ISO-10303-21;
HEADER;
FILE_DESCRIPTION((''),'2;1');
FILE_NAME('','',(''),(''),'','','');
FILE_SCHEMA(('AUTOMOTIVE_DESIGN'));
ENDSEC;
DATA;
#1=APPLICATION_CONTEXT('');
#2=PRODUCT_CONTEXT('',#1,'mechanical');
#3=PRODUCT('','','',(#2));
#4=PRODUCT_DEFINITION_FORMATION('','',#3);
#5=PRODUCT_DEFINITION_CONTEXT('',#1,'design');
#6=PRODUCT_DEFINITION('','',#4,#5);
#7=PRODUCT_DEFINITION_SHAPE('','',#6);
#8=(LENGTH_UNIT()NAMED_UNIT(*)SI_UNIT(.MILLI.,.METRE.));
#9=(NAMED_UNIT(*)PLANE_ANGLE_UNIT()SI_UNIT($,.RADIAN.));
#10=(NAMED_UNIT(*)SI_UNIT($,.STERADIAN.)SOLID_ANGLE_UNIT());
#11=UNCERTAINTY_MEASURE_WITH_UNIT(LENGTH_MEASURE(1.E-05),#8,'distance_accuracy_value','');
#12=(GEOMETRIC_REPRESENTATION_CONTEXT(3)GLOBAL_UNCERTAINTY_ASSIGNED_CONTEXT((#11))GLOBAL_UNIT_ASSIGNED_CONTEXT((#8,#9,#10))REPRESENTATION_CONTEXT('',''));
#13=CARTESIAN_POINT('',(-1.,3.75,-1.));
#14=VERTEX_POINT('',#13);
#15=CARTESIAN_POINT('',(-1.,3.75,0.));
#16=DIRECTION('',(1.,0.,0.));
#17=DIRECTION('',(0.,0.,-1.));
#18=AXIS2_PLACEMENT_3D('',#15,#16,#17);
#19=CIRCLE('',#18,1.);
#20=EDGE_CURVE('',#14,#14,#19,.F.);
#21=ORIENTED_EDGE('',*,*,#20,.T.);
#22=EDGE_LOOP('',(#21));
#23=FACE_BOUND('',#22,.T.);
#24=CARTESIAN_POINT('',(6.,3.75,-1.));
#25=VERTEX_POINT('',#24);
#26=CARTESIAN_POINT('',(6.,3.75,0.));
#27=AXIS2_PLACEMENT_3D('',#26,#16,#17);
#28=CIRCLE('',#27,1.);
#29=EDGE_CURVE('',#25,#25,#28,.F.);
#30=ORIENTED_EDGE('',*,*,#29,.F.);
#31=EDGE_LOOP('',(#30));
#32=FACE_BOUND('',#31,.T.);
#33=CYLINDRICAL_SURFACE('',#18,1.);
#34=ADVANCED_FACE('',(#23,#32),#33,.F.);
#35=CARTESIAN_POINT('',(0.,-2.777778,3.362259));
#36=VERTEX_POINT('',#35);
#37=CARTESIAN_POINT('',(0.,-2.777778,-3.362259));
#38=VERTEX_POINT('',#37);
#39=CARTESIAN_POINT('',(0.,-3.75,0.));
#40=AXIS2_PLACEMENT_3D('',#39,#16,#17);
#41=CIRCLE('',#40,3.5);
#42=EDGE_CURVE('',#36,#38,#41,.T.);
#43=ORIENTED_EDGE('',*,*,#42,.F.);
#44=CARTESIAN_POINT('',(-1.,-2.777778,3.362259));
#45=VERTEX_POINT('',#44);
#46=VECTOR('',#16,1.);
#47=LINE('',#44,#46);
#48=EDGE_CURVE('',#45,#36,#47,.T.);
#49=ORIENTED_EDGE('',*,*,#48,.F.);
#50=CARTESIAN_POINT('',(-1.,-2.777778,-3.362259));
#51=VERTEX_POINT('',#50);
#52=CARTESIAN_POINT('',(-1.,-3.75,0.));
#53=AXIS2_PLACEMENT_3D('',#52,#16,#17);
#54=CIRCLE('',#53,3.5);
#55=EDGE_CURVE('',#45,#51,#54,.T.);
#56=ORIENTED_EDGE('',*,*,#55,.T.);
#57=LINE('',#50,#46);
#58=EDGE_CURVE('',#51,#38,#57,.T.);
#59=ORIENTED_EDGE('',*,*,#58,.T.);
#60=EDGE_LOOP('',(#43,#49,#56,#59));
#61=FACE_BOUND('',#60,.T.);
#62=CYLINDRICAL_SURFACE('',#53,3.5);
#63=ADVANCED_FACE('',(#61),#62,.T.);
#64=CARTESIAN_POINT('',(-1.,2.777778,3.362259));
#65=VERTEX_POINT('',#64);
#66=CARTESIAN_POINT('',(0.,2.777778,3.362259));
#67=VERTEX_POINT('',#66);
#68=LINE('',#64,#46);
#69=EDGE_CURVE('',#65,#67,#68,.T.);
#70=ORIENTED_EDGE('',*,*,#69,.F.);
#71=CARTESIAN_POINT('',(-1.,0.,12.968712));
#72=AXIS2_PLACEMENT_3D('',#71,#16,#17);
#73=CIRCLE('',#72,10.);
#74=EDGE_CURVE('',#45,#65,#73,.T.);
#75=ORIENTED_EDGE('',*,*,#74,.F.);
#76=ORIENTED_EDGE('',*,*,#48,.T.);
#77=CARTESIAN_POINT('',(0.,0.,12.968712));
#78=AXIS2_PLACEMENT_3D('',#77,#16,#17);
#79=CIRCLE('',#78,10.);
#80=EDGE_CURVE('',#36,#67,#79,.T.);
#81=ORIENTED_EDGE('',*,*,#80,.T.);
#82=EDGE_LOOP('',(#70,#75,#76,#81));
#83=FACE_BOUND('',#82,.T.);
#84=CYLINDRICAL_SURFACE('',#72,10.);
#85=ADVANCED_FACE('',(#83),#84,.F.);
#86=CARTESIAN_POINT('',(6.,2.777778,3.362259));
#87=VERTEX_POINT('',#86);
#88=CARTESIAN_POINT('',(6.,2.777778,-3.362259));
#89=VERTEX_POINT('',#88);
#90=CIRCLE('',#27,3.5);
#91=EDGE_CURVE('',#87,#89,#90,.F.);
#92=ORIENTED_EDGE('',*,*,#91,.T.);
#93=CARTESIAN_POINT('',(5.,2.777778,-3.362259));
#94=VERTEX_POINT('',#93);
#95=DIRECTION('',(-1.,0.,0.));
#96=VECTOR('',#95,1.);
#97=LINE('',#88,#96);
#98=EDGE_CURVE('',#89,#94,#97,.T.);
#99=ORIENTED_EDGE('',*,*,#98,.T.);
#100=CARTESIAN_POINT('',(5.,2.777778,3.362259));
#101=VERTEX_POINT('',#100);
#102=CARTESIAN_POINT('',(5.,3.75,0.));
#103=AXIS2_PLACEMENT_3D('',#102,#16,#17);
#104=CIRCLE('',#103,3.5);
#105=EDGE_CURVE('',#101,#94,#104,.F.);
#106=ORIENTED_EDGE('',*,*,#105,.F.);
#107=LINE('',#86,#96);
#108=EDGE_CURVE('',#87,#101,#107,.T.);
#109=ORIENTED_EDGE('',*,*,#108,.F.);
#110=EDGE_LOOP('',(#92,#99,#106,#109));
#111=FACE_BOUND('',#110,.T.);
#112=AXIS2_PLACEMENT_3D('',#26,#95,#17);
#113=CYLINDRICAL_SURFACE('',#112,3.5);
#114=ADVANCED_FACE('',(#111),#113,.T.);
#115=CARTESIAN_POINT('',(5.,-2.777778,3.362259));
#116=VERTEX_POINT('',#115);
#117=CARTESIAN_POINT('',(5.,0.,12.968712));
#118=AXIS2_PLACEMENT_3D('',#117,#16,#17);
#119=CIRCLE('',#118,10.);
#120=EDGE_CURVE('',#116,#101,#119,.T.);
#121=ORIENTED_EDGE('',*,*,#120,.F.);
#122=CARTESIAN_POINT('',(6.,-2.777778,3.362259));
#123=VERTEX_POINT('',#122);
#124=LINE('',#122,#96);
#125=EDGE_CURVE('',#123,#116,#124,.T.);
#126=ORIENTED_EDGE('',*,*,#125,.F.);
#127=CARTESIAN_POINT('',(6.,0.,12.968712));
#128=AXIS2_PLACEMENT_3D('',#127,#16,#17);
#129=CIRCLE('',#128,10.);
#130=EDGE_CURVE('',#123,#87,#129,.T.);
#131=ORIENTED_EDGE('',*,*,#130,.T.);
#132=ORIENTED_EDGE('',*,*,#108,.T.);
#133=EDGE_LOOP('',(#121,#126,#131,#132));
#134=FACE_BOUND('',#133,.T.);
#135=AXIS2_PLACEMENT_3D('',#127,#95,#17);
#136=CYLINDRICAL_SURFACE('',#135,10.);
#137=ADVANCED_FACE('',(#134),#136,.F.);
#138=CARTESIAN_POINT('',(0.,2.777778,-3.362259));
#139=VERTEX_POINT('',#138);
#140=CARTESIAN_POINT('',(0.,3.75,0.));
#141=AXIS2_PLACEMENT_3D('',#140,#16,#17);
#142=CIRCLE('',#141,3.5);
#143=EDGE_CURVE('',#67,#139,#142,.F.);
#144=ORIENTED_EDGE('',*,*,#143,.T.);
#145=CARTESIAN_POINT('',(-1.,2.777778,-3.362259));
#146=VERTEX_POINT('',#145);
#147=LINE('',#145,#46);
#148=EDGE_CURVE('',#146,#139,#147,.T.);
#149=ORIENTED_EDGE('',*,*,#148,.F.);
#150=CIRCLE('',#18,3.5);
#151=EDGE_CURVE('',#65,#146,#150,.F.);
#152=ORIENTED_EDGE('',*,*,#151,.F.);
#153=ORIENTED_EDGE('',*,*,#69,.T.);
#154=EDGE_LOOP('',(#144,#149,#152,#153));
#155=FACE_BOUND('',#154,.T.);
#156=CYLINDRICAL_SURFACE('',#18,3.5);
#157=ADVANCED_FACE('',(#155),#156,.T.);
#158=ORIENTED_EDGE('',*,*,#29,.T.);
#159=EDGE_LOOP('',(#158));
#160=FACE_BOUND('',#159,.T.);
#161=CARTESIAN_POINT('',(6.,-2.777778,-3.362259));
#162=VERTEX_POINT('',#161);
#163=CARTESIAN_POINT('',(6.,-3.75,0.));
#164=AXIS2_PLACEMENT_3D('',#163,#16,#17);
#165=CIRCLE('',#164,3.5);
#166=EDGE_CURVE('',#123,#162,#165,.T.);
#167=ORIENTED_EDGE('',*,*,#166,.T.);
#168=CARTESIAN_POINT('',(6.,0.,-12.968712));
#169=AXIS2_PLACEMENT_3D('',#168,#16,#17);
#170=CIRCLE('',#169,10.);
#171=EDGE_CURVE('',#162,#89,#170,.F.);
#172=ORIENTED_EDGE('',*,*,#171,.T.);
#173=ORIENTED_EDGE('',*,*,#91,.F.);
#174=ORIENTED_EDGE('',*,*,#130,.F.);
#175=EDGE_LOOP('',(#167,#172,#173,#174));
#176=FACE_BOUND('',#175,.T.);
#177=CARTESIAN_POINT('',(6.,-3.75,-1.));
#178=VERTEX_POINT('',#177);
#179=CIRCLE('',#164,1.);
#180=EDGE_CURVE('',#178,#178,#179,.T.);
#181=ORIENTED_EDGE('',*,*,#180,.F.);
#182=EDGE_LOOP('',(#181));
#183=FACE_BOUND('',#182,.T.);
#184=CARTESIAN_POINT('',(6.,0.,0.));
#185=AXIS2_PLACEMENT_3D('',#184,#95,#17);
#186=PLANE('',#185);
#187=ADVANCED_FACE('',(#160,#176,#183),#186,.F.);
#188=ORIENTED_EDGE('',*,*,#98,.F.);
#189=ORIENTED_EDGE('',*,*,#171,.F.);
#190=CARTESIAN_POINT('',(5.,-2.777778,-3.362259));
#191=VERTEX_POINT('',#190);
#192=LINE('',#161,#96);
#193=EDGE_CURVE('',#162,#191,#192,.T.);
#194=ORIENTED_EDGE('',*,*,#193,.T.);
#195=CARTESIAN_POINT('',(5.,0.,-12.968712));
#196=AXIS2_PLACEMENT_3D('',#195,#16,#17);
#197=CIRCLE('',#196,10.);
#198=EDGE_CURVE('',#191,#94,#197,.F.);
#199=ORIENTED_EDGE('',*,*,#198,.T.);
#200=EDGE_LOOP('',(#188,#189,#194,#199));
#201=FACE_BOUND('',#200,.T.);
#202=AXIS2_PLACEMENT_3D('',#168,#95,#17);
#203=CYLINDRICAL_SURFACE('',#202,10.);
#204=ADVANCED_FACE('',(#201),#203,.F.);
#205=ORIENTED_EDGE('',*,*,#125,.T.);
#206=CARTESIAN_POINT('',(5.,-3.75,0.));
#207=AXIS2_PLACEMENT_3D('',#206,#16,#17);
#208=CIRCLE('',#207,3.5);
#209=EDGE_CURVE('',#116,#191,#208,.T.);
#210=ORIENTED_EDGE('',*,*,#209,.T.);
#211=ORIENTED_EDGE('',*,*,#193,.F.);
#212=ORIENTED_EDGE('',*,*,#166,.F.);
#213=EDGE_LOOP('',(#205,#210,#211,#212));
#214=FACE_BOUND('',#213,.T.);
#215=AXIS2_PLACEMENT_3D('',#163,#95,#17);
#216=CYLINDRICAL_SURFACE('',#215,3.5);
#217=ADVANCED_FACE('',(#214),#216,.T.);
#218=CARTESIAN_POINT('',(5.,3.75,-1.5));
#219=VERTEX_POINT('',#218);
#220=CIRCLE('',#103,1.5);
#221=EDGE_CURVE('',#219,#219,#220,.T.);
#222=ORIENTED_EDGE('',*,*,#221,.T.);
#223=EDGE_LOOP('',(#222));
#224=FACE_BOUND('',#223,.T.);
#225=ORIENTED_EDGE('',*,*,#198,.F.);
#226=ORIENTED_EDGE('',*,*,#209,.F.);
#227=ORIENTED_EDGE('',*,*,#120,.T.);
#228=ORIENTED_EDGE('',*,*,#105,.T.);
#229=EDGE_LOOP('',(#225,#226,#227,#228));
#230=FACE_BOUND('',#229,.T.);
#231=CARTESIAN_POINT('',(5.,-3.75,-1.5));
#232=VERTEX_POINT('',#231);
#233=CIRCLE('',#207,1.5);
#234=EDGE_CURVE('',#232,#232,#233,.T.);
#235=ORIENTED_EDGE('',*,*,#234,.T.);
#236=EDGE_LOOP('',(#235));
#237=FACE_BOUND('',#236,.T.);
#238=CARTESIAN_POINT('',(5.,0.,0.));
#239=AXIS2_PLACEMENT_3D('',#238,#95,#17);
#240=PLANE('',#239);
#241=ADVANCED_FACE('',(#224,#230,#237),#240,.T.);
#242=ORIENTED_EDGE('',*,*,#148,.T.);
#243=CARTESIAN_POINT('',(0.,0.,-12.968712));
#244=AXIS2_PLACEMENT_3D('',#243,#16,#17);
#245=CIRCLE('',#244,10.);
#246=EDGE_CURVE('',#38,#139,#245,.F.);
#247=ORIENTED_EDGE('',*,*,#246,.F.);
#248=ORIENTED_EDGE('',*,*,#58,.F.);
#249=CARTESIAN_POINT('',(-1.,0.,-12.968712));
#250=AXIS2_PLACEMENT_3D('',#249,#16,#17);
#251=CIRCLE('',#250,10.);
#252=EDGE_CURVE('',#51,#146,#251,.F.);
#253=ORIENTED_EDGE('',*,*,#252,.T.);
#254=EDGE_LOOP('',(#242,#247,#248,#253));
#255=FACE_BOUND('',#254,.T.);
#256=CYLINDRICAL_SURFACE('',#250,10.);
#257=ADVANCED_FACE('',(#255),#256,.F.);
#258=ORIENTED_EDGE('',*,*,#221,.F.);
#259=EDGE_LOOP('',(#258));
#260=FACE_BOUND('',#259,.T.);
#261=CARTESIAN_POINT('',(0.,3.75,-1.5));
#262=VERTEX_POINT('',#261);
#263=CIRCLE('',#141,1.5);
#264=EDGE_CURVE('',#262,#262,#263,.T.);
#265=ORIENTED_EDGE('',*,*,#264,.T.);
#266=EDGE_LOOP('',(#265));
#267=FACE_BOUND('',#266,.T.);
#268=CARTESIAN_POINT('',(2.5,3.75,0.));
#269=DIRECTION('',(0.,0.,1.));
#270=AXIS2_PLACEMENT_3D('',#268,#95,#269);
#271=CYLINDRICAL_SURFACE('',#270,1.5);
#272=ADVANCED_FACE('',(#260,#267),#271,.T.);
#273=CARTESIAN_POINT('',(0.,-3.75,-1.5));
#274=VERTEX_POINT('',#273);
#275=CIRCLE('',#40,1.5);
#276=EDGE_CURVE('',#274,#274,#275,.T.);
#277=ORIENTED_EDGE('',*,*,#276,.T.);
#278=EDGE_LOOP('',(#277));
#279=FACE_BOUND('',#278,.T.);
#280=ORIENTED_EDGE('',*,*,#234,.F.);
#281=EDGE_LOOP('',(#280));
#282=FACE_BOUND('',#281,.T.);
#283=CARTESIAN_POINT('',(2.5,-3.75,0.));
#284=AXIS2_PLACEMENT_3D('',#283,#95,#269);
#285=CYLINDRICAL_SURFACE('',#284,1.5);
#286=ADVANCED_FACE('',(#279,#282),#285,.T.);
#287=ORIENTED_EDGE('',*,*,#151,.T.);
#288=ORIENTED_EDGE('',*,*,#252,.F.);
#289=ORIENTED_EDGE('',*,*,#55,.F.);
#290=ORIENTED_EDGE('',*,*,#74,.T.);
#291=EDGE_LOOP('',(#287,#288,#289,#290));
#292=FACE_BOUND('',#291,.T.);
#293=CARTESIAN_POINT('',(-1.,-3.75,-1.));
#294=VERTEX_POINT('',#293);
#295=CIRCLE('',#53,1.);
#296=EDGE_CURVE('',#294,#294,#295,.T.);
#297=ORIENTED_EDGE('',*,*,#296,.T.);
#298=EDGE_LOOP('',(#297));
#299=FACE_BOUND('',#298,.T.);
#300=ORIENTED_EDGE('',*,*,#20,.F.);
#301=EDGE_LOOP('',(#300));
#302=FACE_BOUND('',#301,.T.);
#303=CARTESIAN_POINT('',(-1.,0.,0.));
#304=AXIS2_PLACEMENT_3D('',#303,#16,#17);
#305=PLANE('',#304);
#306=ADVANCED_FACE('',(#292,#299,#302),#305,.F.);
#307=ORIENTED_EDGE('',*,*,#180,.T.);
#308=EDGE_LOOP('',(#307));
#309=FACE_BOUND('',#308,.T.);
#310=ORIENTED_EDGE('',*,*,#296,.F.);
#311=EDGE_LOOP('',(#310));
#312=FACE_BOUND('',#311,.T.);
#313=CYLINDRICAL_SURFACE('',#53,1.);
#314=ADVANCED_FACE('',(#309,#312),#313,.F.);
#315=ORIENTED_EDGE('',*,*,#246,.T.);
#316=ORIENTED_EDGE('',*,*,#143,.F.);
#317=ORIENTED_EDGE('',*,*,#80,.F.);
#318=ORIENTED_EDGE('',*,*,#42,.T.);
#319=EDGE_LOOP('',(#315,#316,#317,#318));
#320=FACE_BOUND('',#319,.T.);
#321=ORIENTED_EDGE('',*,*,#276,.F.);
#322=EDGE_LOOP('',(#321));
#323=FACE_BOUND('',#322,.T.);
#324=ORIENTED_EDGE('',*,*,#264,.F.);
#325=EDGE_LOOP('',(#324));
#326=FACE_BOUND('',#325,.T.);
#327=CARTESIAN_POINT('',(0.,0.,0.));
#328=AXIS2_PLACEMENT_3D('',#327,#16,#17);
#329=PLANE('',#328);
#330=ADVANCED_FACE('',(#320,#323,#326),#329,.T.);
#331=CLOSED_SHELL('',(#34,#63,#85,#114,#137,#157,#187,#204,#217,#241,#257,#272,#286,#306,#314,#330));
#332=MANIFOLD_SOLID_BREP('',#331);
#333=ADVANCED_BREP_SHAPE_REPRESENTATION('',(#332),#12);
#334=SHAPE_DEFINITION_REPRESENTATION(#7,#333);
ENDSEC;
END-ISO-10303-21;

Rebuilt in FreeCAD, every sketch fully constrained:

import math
import FreeCAD as App
import Part
import Sketcher

doc = App.newDocument("Part")
body = doc.addObject("PartDesign::Body", "Body")

sketch1 = body.newObject("Sketcher::SketchObject", "Sketch")
sketch1.AttachmentSupport = (doc.getObject("YZ_Plane"), [""])
sketch1.MapMode = "FlatFace"
sketch1.addGeometry(Part.ArcOfCircle(Part.Circle(App.Vector(-3.75, 0, 0), App.Vector(0, 0, 1), 3.5), math.radians(73.87238), math.radians(286.12762)), False)
sketch1.addGeometry(Part.ArcOfCircle(Part.Circle(App.Vector(0, -12.968712, 0), App.Vector(0, 0, 1), 10), math.radians(73.87238), math.radians(106.12762)), False)
sketch1.addGeometry(Part.ArcOfCircle(Part.Circle(App.Vector(3.75, 0, 0), App.Vector(0, 0, 1), 3.5), math.radians(-106.12762), math.radians(106.12762)), False)
sketch1.addGeometry(Part.ArcOfCircle(Part.Circle(App.Vector(0, 12.968712, 0), App.Vector(0, 0, 1), 10), math.radians(-106.12762), math.radians(-73.87238)), False)
sketch1.addGeometry(Part.Circle(App.Vector(-3.75, 0, 0), App.Vector(0, 0, 1), 1), False)
sketch1.addGeometry(Part.Circle(App.Vector(3.75, 0, 0), App.Vector(0, 0, 1), 1), False)
sketch1.addConstraint(Sketcher.Constraint("Tangent", 0, 2, 1, 2))
sketch1.addConstraint(Sketcher.Constraint("Tangent", 1, 1, 2, 1))
sketch1.addConstraint(Sketcher.Constraint("Tangent", 2, 2, 3, 2))
sketch1.addConstraint(Sketcher.Constraint("Tangent", 3, 1, 0, 1))
sketch1.addConstraint(Sketcher.Constraint("Coincident", 4, 3, 0, 3))
sketch1.addConstraint(Sketcher.Constraint("Coincident", 5, 3, 2, 3))
sketch1.addConstraint(Sketcher.Constraint("Equal", 0, 2))
sketch1.addConstraint(Sketcher.Constraint("Equal", 1, 3))
sketch1.addConstraint(Sketcher.Constraint("Equal", 4, 5))
sketch1.addConstraint(Sketcher.Constraint("Symmetric", 0, 3, 2, 3, -1, 1))
sketch1.addConstraint(Sketcher.Constraint("PointOnObject", 0, 3, -1))
sketch1.addConstraint(Sketcher.Constraint("Diameter", 4, 2.0))
sketch1.addConstraint(Sketcher.Constraint("Radius", 1, 10.0))
sketch1.addConstraint(Sketcher.Constraint("Radius", 0, 3.5))
sketch1.addConstraint(Sketcher.Constraint("DistanceX", 0, 3, 2, 3, 7.5))
pad1 = body.newObject("PartDesign::Pad", "Pad")
pad1.Profile = sketch1
pad1.Length = 1
pad1.Reversed = True

sketch2 = body.newObject("Sketcher::SketchObject", "Sketch001")
sketch2.AttachmentSupport = (doc.getObject("YZ_Plane"), [""])
sketch2.MapMode = "FlatFace"
sketch2.AttachmentOffset = App.Placement(App.Vector(0, 0, 2.5), App.Rotation())
sketch2.addGeometry(Part.Circle(App.Vector(-3.75, 0, 0), App.Vector(0, 0, 1), 1.5), False)
sketch2.addGeometry(Part.Circle(App.Vector(-3.75, 0, 0), App.Vector(0, 0, 1), 1), False)
sketch2.addGeometry(Part.Circle(App.Vector(3.75, 0, 0), App.Vector(0, 0, 1), 1.5), False)
sketch2.addGeometry(Part.Circle(App.Vector(3.75, 0, 0), App.Vector(0, 0, 1), 1), False)
sketch2.addConstraint(Sketcher.Constraint("Coincident", 1, 3, 0, 3))
sketch2.addConstraint(Sketcher.Constraint("Coincident", 3, 3, 2, 3))
sketch2.addConstraint(Sketcher.Constraint("Equal", 0, 2))
sketch2.addConstraint(Sketcher.Constraint("Equal", 1, 3))
sketch2.addConstraint(Sketcher.Constraint("Symmetric", 0, 3, 2, 3, -1, 1))
sketch2.addConstraint(Sketcher.Constraint("PointOnObject", 0, 3, -1))
sketch2.addConstraint(Sketcher.Constraint("Diameter", 0, 3.0))
sketch2.addConstraint(Sketcher.Constraint("Diameter", 1, 2.0))
sketch2.addConstraint(Sketcher.Constraint("DistanceX", 0, 3, 2, 3, 7.5))
pad2 = body.newObject("PartDesign::Pad", "Pad001")
pad2.Profile = sketch2
pad2.Length = 2.5
pad2.Reversed = True
body2 = doc.addObject("PartDesign::Body", "Body001")
doc.recompute()

body2.BaseFeature = body
doc.recompute()

mirroring = doc.addObject("Part::Mirroring", "Mirroring")
mirroring.Source = body
mirroring.Base = App.Vector(2.5, 0, 0)
mirroring.Normal = App.Vector(1, 0, 0)
body3 = doc.addObject("PartDesign::Body", "Body002")
body3.BaseFeature = mirroring
boolean = body2.newObject("PartDesign::Boolean", "Boolean")
boolean.Type = "Fuse"
boolean.addObjects([body3])
doc.recompute()
mirroring.Visibility = False

doc.recompute()
